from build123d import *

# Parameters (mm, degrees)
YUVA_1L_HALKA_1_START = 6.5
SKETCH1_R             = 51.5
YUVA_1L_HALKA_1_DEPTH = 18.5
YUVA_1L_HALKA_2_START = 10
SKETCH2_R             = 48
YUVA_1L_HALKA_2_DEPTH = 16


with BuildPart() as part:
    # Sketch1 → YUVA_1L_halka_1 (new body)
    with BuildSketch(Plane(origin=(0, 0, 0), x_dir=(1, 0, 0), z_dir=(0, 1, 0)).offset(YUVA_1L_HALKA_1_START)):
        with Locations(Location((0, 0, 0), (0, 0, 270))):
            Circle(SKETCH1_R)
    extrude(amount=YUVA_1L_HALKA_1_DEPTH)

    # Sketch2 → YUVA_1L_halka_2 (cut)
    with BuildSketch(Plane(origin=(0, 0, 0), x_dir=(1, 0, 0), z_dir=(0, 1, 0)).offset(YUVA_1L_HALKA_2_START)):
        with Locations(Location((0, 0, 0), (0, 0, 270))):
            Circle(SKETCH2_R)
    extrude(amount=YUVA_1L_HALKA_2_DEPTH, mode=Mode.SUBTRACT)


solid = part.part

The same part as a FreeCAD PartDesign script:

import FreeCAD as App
import Part
import Sketcher

V = App.Vector

doc = App.newDocument("Part")
body = doc.addObject("PartDesign::Body", "Body")

sketch1 = body.newObject("Sketcher::SketchObject", "Sketch")
sketch1.AttachmentSupport = (doc.getObject("XZ_Plane"), [""])
sketch1.MapMode = "FlatFace"
sketch1.AttachmentOffset = App.Placement(V(0, 0, -6.5), App.Rotation())
sketch1.addGeometry(Part.Circle(V(0, 0, 0), V(0, 0, 1), 51.5), False)
sketch1.addConstraint([
    Sketcher.Constraint("Coincident", 0, 3, -1, 1),
    Sketcher.Constraint("Diameter", 0, 103.0),
])
pad1 = body.newObject("PartDesign::Pad", "Pad")
pad1.Profile = sketch1
pad1.Length = 18.5
pad1.Reversed = True

sketch2 = body.newObject("Sketcher::SketchObject", "Sketch001")
sketch2.AttachmentSupport = (doc.getObject("XZ_Plane"), [""])
sketch2.MapMode = "FlatFace"
sketch2.AttachmentOffset = App.Placement(V(0, 0, -10), App.Rotation())
sketch2.addGeometry(Part.Circle(V(0, 0, 0), V(0, 0, 1), 48), False)
sketch2.addConstraint([
    Sketcher.Constraint("Coincident", 0, 3, -1, 1),
    Sketcher.Constraint("Diameter", 0, 96.0),
])
pocket1 = body.newObject("PartDesign::Pocket", "Pocket")
pocket1.Profile = sketch2
pocket1.Length = 16

doc.recompute()
